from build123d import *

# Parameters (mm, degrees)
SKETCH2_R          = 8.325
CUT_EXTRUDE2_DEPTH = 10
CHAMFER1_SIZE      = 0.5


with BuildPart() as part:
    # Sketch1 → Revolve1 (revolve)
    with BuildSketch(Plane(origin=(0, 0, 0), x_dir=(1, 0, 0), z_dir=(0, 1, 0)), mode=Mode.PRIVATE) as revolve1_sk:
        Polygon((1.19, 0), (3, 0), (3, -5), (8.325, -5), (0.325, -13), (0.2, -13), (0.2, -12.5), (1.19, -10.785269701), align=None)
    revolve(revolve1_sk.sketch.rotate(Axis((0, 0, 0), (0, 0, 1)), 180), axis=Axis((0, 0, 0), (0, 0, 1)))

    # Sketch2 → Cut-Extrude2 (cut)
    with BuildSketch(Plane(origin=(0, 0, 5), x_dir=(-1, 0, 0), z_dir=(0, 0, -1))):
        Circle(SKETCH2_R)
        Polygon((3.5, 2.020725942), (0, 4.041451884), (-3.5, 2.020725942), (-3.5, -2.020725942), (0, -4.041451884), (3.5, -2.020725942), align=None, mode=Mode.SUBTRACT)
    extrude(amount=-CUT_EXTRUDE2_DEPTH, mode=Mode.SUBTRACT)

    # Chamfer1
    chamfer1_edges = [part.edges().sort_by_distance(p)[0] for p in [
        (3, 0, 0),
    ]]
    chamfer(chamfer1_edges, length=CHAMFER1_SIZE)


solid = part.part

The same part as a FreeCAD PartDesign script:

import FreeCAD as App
import Part
import Sketcher
Q = App.Units.Quantity


def edges_at(feature, points):
    """Names of the edges that pass closest to the given points."""
    edges = feature.Shape.Edges
    near = lambda p: min(range(len(edges)), key=lambda i: edges[i].distToShape(Part.Vertex(*p))[0])
    return sorted({f"Edge{near(p) + 1}" for p in points})


def add_polygon(sketch, points):
    """Adds a closed chain of lines whose ends are joined by coincident constraints."""
    first, n = sketch.GeometryCount, len(points)
    for a, b in zip(points, points[1:] + points[:1]):
        sketch.addGeometry(Part.LineSegment(App.Vector(*a, 0), App.Vector(*b, 0)), False)
    for i in range(n):
        sketch.addConstraint(Sketcher.Constraint("Coincident", first + i, 2, first + (i + 1) % n, 1))

doc = App.newDocument("Part")
body = doc.addObject("PartDesign::Body", "Body")

# Sketch on XZ plane
sketch1 = body.newObject("Sketcher::SketchObject", "Sketch")
sketch1.AttachmentSupport = (doc.getObject("XZ_Plane"), [""])
sketch1.MapMode = "FlatFace"
add_polygon(sketch1, [(3, 0), (1.19, 0), (1.19, 10.79), (0.2, 12.5), (0.2, 13), (0.33, 13), (8.32, 5), (3, 5)])  # lines 0-7
sketch1.addConstraint([
    Sketcher.Constraint("Horizontal", 0),
    Sketcher.Constraint("Vertical", 1),
    Sketcher.Constraint("Vertical", 3),
    Sketcher.Constraint("Horizontal", 4),
    Sketcher.Constraint("Horizontal", 6),
    Sketcher.Constraint("Vertical", 7),
    Sketcher.Constraint("PointOnObject", 0, 2, -1),
    Sketcher.Constraint("DistanceY", 7, 2, 7, 1, 5.0),
    Sketcher.Constraint("Angle", 2, Q("120 deg")),
    Sketcher.Constraint("Angle", 5, Q("-45 deg")),
    Sketcher.Constraint("DistanceY", 3, 1, 3, 2, 0.5),
    Sketcher.Constraint("DistanceY", -1, 1, 3, 2, 13.0),
    Sketcher.Constraint("DistanceX", -1, 1, 6, 2, 3.0),
    Sketcher.Constraint("DistanceX", 0, 2, 0, 1, 1.81),
    Sketcher.Constraint("DistanceX", -1, 1, 2, 2, 0.2),
    Sketcher.Constraint("DistanceX", 4, 1, 4, 2, 0.125),
])
revolution = body.newObject("PartDesign::Revolution", "Revolution")
revolution.Profile = sketch1
revolution.ReferenceAxis = (sketch1, ["V_Axis"])
revolution.Angle = 360

# Sketch on XY plane
sketch2 = body.newObject("Sketcher::SketchObject", "Sketch001")
sketch2.AttachmentSupport = (doc.getObject("XY_Plane"), [""])
sketch2.MapMode = "FlatFace"
sketch2.AttachmentOffset = App.Placement(App.Vector(0, 0, 5), App.Rotation())
sketch2.addGeometry(Part.Circle(App.Vector(0, 0, 0), App.Vector(0, 0, 1), 8.3), False)  # 0
add_polygon(sketch2, [(0, 4), (-3.5, 2), (-3.5, -2), (0, -4), (3.5, -2), (3.5, 2)])  # lines 1-6
sketch2.addConstraint([
    Sketcher.Constraint("Vertical", 2),
    Sketcher.Constraint("Vertical", 5),
    Sketcher.Constraint("Coincident", 0, 3, -1, 1),
    Sketcher.Constraint("Symmetric", 1, 2, 4, 2, -1, 1),
    Sketcher.Constraint("Symmetric", 3, 2, 6, 2, -1, 1),
    Sketcher.Constraint("PointOnObject", 3, 2, -2),
    Sketcher.Constraint("Parallel", 3, 6),
    Sketcher.Constraint("Horizontal", 2, 2, 4, 2),
    Sketcher.Constraint("Diameter", 0, 16.65),
    Sketcher.Constraint("Angle", 1, Q("-150 deg")),
    Sketcher.Constraint("DistanceX", 2, 2, 4, 2, 7.0),
    Sketcher.Constraint("DistanceY", 2, 2, 2, 1, 4.041452),
])
pocket1 = body.newObject("PartDesign::Pocket", "Pocket")
pocket1.Profile = sketch2
pocket1.Length = 10
pocket1.Reversed = True
doc.recompute()

chamfer = body.newObject("PartDesign::Chamfer", "Chamfer")
chamfer.Base = (pocket1, edges_at(pocket1, [(3, 0, 0)]))
chamfer.Size = 0.5

doc.recompute()
